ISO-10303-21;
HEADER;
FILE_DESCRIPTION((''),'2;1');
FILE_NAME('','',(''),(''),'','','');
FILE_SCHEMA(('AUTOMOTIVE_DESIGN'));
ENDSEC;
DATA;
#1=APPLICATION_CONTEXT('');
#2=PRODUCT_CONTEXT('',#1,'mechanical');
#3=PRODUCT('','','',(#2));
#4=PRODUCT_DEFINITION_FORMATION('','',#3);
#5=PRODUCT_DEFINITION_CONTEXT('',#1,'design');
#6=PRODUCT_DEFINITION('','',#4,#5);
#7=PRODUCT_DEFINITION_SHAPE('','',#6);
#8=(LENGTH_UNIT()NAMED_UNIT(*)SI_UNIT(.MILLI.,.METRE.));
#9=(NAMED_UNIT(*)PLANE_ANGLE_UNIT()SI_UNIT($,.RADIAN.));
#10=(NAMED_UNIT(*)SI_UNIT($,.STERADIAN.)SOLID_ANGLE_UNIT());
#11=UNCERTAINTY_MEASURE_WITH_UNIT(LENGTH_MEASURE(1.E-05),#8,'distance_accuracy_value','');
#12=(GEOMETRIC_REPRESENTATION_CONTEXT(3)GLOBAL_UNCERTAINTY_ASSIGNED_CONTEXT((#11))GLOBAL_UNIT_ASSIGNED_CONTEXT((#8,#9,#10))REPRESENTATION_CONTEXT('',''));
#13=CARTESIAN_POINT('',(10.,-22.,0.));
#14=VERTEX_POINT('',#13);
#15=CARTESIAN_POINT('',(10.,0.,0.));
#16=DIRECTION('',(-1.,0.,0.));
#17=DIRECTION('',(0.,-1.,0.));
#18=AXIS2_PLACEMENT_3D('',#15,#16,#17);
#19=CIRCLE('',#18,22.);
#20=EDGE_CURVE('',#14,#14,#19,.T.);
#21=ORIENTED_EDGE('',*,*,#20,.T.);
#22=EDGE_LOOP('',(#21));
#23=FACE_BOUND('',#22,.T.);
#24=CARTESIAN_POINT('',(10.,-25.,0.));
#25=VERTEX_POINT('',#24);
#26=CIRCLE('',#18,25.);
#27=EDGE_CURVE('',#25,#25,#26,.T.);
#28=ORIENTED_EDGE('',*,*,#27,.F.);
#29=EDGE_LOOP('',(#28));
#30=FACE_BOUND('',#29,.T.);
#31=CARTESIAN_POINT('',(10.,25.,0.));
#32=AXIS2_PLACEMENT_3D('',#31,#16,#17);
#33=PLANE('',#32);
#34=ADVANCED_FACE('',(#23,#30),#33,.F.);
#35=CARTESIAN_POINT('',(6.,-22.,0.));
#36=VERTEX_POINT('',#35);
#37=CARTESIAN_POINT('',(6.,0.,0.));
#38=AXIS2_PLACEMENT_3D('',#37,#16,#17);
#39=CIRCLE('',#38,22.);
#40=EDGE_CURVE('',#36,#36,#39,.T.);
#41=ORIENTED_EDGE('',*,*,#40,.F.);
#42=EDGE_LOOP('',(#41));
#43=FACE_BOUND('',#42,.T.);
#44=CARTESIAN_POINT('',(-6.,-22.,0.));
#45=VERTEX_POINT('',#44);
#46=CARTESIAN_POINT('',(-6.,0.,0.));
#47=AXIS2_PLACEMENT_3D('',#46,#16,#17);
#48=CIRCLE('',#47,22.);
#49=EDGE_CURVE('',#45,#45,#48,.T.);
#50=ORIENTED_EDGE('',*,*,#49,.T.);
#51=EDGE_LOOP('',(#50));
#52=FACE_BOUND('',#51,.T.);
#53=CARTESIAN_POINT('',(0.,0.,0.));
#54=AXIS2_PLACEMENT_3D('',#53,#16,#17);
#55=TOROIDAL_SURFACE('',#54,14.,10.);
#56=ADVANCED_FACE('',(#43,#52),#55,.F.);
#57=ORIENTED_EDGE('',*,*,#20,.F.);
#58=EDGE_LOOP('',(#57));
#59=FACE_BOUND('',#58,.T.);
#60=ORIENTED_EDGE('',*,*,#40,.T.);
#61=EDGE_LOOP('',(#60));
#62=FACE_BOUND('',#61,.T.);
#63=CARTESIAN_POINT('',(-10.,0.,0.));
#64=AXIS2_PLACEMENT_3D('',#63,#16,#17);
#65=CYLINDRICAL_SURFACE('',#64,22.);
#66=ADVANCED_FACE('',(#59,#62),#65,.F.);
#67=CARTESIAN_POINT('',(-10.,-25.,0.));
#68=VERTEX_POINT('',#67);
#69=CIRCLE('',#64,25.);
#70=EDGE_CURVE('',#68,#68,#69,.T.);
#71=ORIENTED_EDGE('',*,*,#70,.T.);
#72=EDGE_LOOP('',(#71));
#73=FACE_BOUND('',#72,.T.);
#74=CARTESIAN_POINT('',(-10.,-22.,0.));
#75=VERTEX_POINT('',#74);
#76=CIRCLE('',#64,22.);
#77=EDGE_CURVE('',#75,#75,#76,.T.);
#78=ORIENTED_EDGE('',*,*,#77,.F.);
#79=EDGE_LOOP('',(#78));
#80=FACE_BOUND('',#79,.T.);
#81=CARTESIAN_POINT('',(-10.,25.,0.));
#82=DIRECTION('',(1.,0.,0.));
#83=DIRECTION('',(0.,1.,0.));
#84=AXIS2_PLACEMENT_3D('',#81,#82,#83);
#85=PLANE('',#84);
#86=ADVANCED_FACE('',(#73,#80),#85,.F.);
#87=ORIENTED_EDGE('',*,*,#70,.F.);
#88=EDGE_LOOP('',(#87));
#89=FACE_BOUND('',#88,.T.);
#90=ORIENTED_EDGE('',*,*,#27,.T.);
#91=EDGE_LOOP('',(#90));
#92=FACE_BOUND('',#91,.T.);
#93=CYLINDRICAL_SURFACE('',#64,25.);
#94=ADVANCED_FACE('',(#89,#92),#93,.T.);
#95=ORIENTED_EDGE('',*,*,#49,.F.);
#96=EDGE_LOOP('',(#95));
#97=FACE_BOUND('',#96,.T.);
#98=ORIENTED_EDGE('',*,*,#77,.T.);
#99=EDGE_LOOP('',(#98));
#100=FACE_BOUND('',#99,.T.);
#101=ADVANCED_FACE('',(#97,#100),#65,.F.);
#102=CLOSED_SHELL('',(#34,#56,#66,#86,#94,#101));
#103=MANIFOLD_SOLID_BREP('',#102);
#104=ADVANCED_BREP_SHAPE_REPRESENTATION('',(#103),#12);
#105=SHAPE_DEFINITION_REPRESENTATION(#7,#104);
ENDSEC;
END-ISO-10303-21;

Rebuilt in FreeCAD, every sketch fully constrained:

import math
import FreeCAD as App
import Part
import Sketcher

V = App.Vector

doc = App.newDocument("Part")
body = doc.addObject("PartDesign::Body", "Body")

# Sketch on XY plane
sketch1 = doc.addObject("Sketcher::SketchObject", "Sketch")
body.addObject(sketch1)
sketch1.AttachmentSupport = (doc.XY_Plane, [""])
sketch1.MapMode = "FlatFace"
sketch1.addGeometry([
    Part.LineSegment(V(10, 25, 0), V(-10, 25, 0)),  # 0
    Part.LineSegment(V(-10, 25, 0), V(-10, 22, 0)),  # 1
    Part.LineSegment(V(-10, 22, 0), V(-6, 22, 0)),  # 2
    Part.ArcOfCircle(Part.Circle(V(0, 14, 0), V(0, 0, 1), 10), math.radians(53), math.radians(127)),  # 3
    Part.LineSegment(V(6, 22, 0), V(10, 22, 0)),  # 4
    Part.LineSegment(V(10, 22, 0), V(10, 25, 0)),  # 5
], False)
sketch1.addConstraint([
    Sketcher.Constraint("Coincident", 0, 2, 1, 1),
    Sketcher.Constraint("Coincident", 1, 2, 2, 1),
    Sketcher.Constraint("Coincident", 2, 2, 3, 2),
    Sketcher.Constraint("Coincident", 3, 1, 4, 1),
    Sketcher.Constraint("Coincident", 4, 2, 5, 1),
    Sketcher.Constraint("Coincident", 5, 2, 0, 1),
    Sketcher.Constraint("Horizontal", 0),
    Sketcher.Constraint("Vertical", 1),
    Sketcher.Constraint("Horizontal", 2),
    Sketcher.Constraint("Horizontal", 4),
    Sketcher.Constraint("Vertical", 5),
    Sketcher.Constraint("Symmetric", 2, 2, 3, 1, -2),
    Sketcher.Constraint("Equal", 2, 4),
    Sketcher.Constraint("Radius", 3, 10.0),
    Sketcher.Constraint("DistanceX", 0, 2, 0, 1, 20.0),
    Sketcher.Constraint("DistanceX", 2, 1, 2, 2, 4.0),
    Sketcher.Constraint("DistanceY", 1, 2, 1, 1, 3.0),
    Sketcher.Constraint("DistanceY", -1, 1, 3, 3, 14.0),
])
revolution = doc.addObject("PartDesign::Revolution", "Revolution")
body.addObject(revolution)
revolution.Profile = sketch1
revolution.ReferenceAxis = (sketch1, ["H_Axis"])
revolution.Angle = 360

doc.recompute()
